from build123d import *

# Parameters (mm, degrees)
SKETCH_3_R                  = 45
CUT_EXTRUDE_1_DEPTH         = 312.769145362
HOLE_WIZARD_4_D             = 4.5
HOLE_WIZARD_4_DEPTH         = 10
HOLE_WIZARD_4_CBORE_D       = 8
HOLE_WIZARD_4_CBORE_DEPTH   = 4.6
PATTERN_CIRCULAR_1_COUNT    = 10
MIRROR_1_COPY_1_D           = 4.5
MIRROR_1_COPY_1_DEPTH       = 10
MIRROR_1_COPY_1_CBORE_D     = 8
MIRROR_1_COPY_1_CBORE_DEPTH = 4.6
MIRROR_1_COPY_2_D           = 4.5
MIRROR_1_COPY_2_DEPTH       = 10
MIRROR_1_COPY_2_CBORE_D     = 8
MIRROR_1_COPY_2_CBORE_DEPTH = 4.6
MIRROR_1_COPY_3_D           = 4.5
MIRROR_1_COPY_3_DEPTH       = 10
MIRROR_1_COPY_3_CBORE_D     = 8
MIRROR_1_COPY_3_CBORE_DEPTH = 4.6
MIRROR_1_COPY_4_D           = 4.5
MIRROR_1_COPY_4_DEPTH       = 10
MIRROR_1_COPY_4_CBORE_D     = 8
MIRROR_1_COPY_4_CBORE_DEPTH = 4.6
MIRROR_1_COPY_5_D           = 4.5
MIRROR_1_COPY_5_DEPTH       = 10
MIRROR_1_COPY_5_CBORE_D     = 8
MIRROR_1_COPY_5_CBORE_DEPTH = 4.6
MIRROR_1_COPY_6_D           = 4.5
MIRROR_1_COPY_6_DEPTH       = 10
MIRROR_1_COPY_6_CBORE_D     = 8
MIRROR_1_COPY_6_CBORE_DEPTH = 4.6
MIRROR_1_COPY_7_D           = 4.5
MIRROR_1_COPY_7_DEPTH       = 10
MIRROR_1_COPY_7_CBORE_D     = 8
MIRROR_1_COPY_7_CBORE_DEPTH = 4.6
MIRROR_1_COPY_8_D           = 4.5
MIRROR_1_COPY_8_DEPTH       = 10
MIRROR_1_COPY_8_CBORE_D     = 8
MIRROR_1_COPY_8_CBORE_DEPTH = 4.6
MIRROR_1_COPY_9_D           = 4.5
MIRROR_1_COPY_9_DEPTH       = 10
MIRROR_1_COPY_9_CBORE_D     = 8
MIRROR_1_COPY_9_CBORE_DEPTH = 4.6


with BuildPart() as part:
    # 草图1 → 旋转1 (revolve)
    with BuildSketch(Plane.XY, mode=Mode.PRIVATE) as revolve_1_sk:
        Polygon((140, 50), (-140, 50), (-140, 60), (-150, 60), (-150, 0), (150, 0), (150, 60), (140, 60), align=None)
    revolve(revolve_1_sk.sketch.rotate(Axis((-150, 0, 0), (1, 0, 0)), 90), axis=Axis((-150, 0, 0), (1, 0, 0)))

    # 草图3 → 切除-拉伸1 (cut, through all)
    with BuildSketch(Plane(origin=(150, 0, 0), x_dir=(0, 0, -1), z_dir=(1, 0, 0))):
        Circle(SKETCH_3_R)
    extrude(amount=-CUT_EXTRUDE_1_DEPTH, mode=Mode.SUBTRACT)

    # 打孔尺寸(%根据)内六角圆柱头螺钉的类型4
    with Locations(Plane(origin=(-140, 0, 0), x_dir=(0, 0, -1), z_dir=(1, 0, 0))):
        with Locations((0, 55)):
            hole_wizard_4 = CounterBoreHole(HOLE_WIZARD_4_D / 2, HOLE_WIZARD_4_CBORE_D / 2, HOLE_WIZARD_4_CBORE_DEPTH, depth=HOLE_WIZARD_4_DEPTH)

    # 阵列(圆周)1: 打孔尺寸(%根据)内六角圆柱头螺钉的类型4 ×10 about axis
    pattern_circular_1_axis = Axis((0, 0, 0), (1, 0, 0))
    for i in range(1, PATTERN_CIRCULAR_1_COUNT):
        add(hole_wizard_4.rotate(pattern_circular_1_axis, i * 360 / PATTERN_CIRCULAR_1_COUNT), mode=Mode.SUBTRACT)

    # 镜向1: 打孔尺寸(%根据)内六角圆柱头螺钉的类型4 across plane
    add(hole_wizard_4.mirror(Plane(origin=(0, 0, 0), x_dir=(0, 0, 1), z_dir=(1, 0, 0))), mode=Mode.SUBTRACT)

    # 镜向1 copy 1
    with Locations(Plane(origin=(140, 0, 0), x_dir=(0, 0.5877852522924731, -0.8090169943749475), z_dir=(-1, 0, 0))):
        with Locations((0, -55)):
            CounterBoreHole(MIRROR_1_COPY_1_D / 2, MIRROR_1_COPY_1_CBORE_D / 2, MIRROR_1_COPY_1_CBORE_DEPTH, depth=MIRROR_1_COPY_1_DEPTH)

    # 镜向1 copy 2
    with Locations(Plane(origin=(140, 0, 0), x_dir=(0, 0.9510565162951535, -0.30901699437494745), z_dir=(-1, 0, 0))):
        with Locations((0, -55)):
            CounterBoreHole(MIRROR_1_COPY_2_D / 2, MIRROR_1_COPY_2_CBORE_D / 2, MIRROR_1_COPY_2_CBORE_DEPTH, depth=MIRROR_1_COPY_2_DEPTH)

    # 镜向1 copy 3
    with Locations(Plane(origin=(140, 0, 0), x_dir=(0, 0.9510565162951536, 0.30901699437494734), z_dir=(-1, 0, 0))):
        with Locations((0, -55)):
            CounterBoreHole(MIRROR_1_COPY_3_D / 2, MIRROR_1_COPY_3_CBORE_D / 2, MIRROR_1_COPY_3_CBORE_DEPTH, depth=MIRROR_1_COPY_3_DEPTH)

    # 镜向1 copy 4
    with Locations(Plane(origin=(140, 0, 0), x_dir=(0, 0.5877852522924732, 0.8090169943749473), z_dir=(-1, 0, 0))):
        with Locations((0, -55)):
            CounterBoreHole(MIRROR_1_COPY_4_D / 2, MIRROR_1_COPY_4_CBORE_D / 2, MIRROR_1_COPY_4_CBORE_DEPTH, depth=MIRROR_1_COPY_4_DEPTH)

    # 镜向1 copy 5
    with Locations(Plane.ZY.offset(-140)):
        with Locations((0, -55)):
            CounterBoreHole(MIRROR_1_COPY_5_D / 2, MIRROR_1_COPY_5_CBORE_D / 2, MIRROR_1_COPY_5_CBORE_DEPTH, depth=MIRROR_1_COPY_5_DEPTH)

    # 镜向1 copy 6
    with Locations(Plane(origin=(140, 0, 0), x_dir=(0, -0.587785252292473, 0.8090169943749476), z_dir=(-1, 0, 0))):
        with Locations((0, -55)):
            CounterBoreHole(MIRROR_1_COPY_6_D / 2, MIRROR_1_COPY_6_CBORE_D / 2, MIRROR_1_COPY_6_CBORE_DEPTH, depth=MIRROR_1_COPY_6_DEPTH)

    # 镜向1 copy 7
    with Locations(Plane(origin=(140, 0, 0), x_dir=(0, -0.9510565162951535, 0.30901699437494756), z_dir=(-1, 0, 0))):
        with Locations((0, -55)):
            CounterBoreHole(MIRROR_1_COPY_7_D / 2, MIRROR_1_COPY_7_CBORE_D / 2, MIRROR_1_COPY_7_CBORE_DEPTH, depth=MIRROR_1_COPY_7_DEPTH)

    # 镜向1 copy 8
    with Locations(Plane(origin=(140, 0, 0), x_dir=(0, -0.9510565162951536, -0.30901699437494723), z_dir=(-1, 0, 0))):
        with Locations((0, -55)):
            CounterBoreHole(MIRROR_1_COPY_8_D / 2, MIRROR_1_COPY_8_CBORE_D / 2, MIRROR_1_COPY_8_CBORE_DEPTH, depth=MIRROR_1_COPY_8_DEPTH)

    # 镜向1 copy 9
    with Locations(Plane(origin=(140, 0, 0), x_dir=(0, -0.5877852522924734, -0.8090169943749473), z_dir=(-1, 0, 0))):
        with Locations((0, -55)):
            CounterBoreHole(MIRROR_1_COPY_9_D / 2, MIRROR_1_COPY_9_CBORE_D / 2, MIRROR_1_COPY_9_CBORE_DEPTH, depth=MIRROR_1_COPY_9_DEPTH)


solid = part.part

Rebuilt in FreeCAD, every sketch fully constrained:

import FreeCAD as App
import Part
import Sketcher

V = App.Vector
Q = App.Units.Quantity


def add_polygon(sketch, points):
    """Adds a closed chain of lines whose ends are joined by coincident constraints."""
    first, n = sketch.GeometryCount, len(points)
    for a, b in zip(points, points[1:] + points[:1]):
        sketch.addGeometry(Part.LineSegment(App.Vector(*a, 0), App.Vector(*b, 0)), False)
    for i in range(n):
        sketch.addConstraint(Sketcher.Constraint("Coincident", first + i, 2, first + (i + 1) % n, 1))

doc = App.newDocument("Part")
body = doc.addObject("PartDesign::Body", "Body")

# Sketch on XY plane
sketch1 = body.newObject("Sketcher::SketchObject", "Sketch")
sketch1.AttachmentSupport = (doc.getObject("XY_Plane"), [""])
sketch1.MapMode = "FlatFace"
add_polygon(sketch1, [(140, 50), (-140, 50), (-140, 60), (-150, 60), (-150, 0), (150, 0), (150, 60), (140, 60)])  # lines 0-7
sketch1.addConstraint([
    Sketcher.Constraint("Horizontal", 0),
    Sketcher.Constraint("Vertical", 1),
    Sketcher.Constraint("Horizontal", 2),
    Sketcher.Constraint("Vertical", 3),
    Sketcher.Constraint("Horizontal", 4),
    Sketcher.Constraint("Vertical", 5),
    Sketcher.Constraint("Horizontal", 6),
    Sketcher.Constraint("Vertical", 7),
    Sketcher.Constraint("Symmetric", 3, 2, 4, 2, -1, 1),
    Sketcher.Constraint("Symmetric", 1, 2, 6, 2, -2),
    Sketcher.Constraint("Equal", 6, 1),
    Sketcher.Constraint("DistanceX", 0, 2, 0, 1, Q("280 mm")),
    Sketcher.Constraint("DistanceX", 2, 2, 2, 1, Q("10 mm")),
    Sketcher.Constraint("DistanceY", 3, 2, 3, 1, Q("60 mm")),
])
revolution = body.newObject("PartDesign::Revolution", "Revolution")
revolution.Profile = sketch1
revolution.ReferenceAxis = (sketch1, ["H_Axis"])
revolution.Angle = 360

# Sketch on YZ plane
sketch2 = body.newObject("Sketcher::SketchObject", "Sketch001")
sketch2.AttachmentSupport = (doc.getObject("YZ_Plane"), [""])
sketch2.MapMode = "FlatFace"
sketch2.AttachmentOffset = App.Placement(V(0, 0, 150), App.Rotation())
sketch2.addGeometry(Part.Circle(V(0, 0, 0), V(0, 0, 1), 45), False)
sketch2.addConstraint([
    Sketcher.Constraint("Coincident", 0, 3, -1, 1),
    Sketcher.Constraint("Diameter", 0, Q("90 mm")),
])
pocket1 = body.newObject("PartDesign::Pocket", "Pocket")
pocket1.Profile = sketch2
pocket1.Type = "ThroughAll"

# Sketch on YZ plane
sketch3 = body.newObject("Sketcher::SketchObject", "Sketch002")
sketch3.AttachmentSupport = (doc.getObject("YZ_Plane"), [""])
sketch3.MapMode = "FlatFace"
sketch3.AttachmentOffset = App.Placement(V(0, 0, -140), App.Rotation())
sketch3.addGeometry(Part.Circle(V(55, 0, 0), V(0, 0, 1), 2.2), False)
sketch3.addConstraint([
    Sketcher.Constraint("PointOnObject", 0, 3, -1),
    Sketcher.Constraint("Diameter", 0, Q("4.5 mm")),
    Sketcher.Constraint("DistanceX", -1, 1, 0, 3, Q("55 mm")),
])
doc.recompute()
hole = body.newObject("PartDesign::Hole", "Hole")
hole.Profile = sketch3
hole.ThreadType = "None"
hole.Diameter = 4.5
hole.DepthType = "Dimension"
hole.Depth = 10
hole.DrillPoint = "Flat"
hole.HoleCutType = "Counterbore"
hole.HoleCutDiameter = 8
hole.HoleCutDepth = 4.6
doc.recompute()

polarpattern = body.newObject("PartDesign::PolarPattern", "PolarPattern")
polarpattern.Originals = [hole]
polarpattern.Axis = (doc.getObject("X_Axis"), [""])
polarpattern.Angle = 360
polarpattern.Occurrences = 10
body.Tip = polarpattern
doc.recompute()

mirrored = body.newObject("PartDesign::Mirrored", "Mirrored")
mirrored.Originals = [hole]
mirrored.MirrorPlane = (doc.getObject("YZ_Plane"), [""])
body.Tip = mirrored

# Sketch on YZ plane
sketch4 = body.newObject("Sketcher::SketchObject", "Sketch003")
sketch4.AttachmentSupport = (doc.getObject("YZ_Plane"), [""])
sketch4.MapMode = "FlatFace"
sketch4.AttachmentOffset = App.Placement(V(0, 0, 140), App.Rotation())
sketch4.addGeometry(Part.Circle(V(44.5, 32.3, 0), V(0, 0, 1), 2.2), False)
sketch4.addConstraint([
    Sketcher.Constraint("Diameter", 0, Q("4.5 mm")),
    Sketcher.Constraint("DistanceY", -1, 1, 0, 3, Q("32.328189 mm")),
    Sketcher.Constraint("DistanceX", -1, 1, 0, 3, Q("44.495935 mm")),
])
doc.recompute()
hole2 = body.newObject("PartDesign::Hole", "Hole001")
hole2.Profile = sketch4
hole2.ThreadType = "None"
hole2.Diameter = 4.5
hole2.DepthType = "Dimension"
hole2.Depth = 10
hole2.DrillPoint = "Flat"
hole2.HoleCutType = "Counterbore"
hole2.HoleCutDiameter = 8
hole2.HoleCutDepth = 4.6
hole2.Reversed = True

# Sketch on YZ plane
sketch5 = body.newObject("Sketcher::SketchObject", "Sketch004")
sketch5.AttachmentSupport = (doc.getObject("YZ_Plane"), [""])
sketch5.MapMode = "FlatFace"
sketch5.AttachmentOffset = App.Placement(V(0, 0, 140), App.Rotation())
sketch5.addGeometry(Part.Circle(V(17, 52.3, 0), V(0, 0, 1), 2.2), False)
sketch5.addConstraint([
    Sketcher.Constraint("Diameter", 0, Q("4.5 mm")),
    Sketcher.Constraint("DistanceY", -1, 1, 0, 3, Q("52.308108 mm")),
    Sketcher.Constraint("DistanceX", -1, 1, 0, 3, Q("16.995935 mm")),
])
doc.recompute()
hole3 = body.newObject("PartDesign::Hole", "Hole002")
hole3.Profile = sketch5
hole3.ThreadType = "None"
hole3.Diameter = 4.5
hole3.DepthType = "Dimension"
hole3.Depth = 10
hole3.DrillPoint = "Flat"
hole3.HoleCutType = "Counterbore"
hole3.HoleCutDiameter = 8
hole3.HoleCutDepth = 4.6
hole3.Reversed = True

# Sketch on YZ plane
sketch6 = body.newObject("Sketcher::SketchObject", "Sketch005")
sketch6.AttachmentSupport = (doc.getObject("YZ_Plane"), [""])
sketch6.MapMode = "FlatFace"
sketch6.AttachmentOffset = App.Placement(V(0, 0, 140), App.Rotation())
sketch6.addGeometry(Part.Circle(V(-17, 52.3, 0), V(0, 0, 1), 2.2), False)
sketch6.addConstraint([
    Sketcher.Constraint("Diameter", 0, Q("4.5 mm")),
    Sketcher.Constraint("DistanceY", -1, 1, 0, 3, Q("52.308108 mm")),
    Sketcher.Constraint("DistanceX", 0, 3, -1, 1, Q("16.995935 mm")),
])
doc.recompute()
hole4 = body.newObject("PartDesign::Hole", "Hole003")
hole4.Profile = sketch6
hole4.ThreadType = "None"
hole4.Diameter = 4.5
hole4.DepthType = "Dimension"
hole4.Depth = 10
hole4.DrillPoint = "Flat"
hole4.HoleCutType = "Counterbore"
hole4.HoleCutDiameter = 8
hole4.HoleCutDepth = 4.6
hole4.Reversed = True

# Sketch on YZ plane
sketch7 = body.newObject("Sketcher::SketchObject", "Sketch006")
sketch7.AttachmentSupport = (doc.getObject("YZ_Plane"), [""])
sketch7.MapMode = "FlatFace"
sketch7.AttachmentOffset = App.Placement(V(0, 0, 140), App.Rotation())
sketch7.addGeometry(Part.Circle(V(-44.5, 32.3, 0), V(0, 0, 1), 2.2), False)
sketch7.addConstraint([
    Sketcher.Constraint("Diameter", 0, Q("4.5 mm")),
    Sketcher.Constraint("DistanceY", -1, 1, 0, 3, Q("32.328189 mm")),
    Sketcher.Constraint("DistanceX", 0, 3, -1, 1, Q("44.495935 mm")),
])
doc.recompute()
hole5 = body.newObject("PartDesign::Hole", "Hole004")
hole5.Profile = sketch7
hole5.ThreadType = "None"
hole5.Diameter = 4.5
hole5.DepthType = "Dimension"
hole5.Depth = 10
hole5.DrillPoint = "Flat"
hole5.HoleCutType = "Counterbore"
hole5.HoleCutDiameter = 8
hole5.HoleCutDepth = 4.6
hole5.Reversed = True

# Sketch on YZ plane
sketch8 = body.newObject("Sketcher::SketchObject", "Sketch007")
sketch8.AttachmentSupport = (doc.getObject("YZ_Plane"), [""])
sketch8.MapMode = "FlatFace"
sketch8.AttachmentOffset = App.Placement(V(0, 0, 140), App.Rotation())
sketch8.addGeometry(Part.Circle(V(-55, 0, 0), V(0, 0, 1), 2.2), False)
sketch8.addConstraint([
    Sketcher.Constraint("PointOnObject", 0, 3, -1),
    Sketcher.Constraint("Diameter", 0, Q("4.5 mm")),
    Sketcher.Constraint("DistanceX", 0, 3, -1, 1, Q("55 mm")),
])
doc.recompute()
hole6 = body.newObject("PartDesign::Hole", "Hole005")
hole6.Profile = sketch8
hole6.ThreadType = "None"
hole6.Diameter = 4.5
hole6.DepthType = "Dimension"
hole6.Depth = 10
hole6.DrillPoint = "Flat"
hole6.HoleCutType = "Counterbore"
hole6.HoleCutDiameter = 8
hole6.HoleCutDepth = 4.6
hole6.Reversed = True

# Sketch on YZ plane
sketch9 = body.newObject("Sketcher::SketchObject", "Sketch008")
sketch9.AttachmentSupport = (doc.getObject("YZ_Plane"), [""])
sketch9.MapMode = "FlatFace"
sketch9.AttachmentOffset = App.Placement(V(0, 0, 140), App.Rotation())
sketch9.addGeometry(Part.Circle(V(-44.5, -32.3, 0), V(0, 0, 1), 2.2), False)
sketch9.addConstraint([
    Sketcher.Constraint("Diameter", 0, Q("4.5 mm")),
    Sketcher.Constraint("DistanceY", 0, 3, -1, 1, Q("32.328189 mm")),
    Sketcher.Constraint("DistanceX", 0, 3, -1, 1, Q("44.495935 mm")),
])
doc.recompute()
hole7 = body.newObject("PartDesign::Hole", "Hole006")
hole7.Profile = sketch9
hole7.ThreadType = "None"
hole7.Diameter = 4.5
hole7.DepthType = "Dimension"
hole7.Depth = 10
hole7.DrillPoint = "Flat"
hole7.HoleCutType = "Counterbore"
hole7.HoleCutDiameter = 8
hole7.HoleCutDepth = 4.6
hole7.Reversed = True

# Sketch on YZ plane
sketch10 = body.newObject("Sketcher::SketchObject", "Sketch009")
sketch10.AttachmentSupport = (doc.getObject("YZ_Plane"), [""])
sketch10.MapMode = "FlatFace"
sketch10.AttachmentOffset = App.Placement(V(0, 0, 140), App.Rotation())
sketch10.addGeometry(Part.Circle(V(-17, -52.3, 0), V(0, 0, 1), 2.2), False)
sketch10.addConstraint([
    Sketcher.Constraint("Diameter", 0, Q("4.5 mm")),
    Sketcher.Constraint("DistanceY", 0, 3, -1, 1, Q("52.308108 mm")),
    Sketcher.Constraint("DistanceX", 0, 3, -1, 1, Q("16.995935 mm")),
])
doc.recompute()
hole8 = body.newObject("PartDesign::Hole", "Hole007")
hole8.Profile = sketch10
hole8.ThreadType = "None"
hole8.Diameter = 4.5
hole8.DepthType = "Dimension"
hole8.Depth = 10
hole8.DrillPoint = "Flat"
hole8.HoleCutType = "Counterbore"
hole8.HoleCutDiameter = 8
hole8.HoleCutDepth = 4.6
hole8.Reversed = True

# Sketch on YZ plane
sketch11 = body.newObject("Sketcher::SketchObject", "Sketch010")
sketch11.AttachmentSupport = (doc.getObject("YZ_Plane"), [""])
sketch11.MapMode = "FlatFace"
sketch11.AttachmentOffset = App.Placement(V(0, 0, 140), App.Rotation())
sketch11.addGeometry(Part.Circle(V(17, -52.3, 0), V(0, 0, 1), 2.2), False)
sketch11.addConstraint([
    Sketcher.Constraint("Diameter", 0, Q("4.5 mm")),
    Sketcher.Constraint("DistanceY", 0, 3, -1, 1, Q("52.308108 mm")),
    Sketcher.Constraint("DistanceX", -1, 1, 0, 3, Q("16.995935 mm")),
])
doc.recompute()
hole9 = body.newObject("PartDesign::Hole", "Hole008")
hole9.Profile = sketch11
hole9.ThreadType = "None"
hole9.Diameter = 4.5
hole9.DepthType = "Dimension"
hole9.Depth = 10
hole9.DrillPoint = "Flat"
hole9.HoleCutType = "Counterbore"
hole9.HoleCutDiameter = 8
hole9.HoleCutDepth = 4.6
hole9.Reversed = True

# Sketch on YZ plane
sketch12 = body.newObject("Sketcher::SketchObject", "Sketch011")
sketch12.AttachmentSupport = (doc.getObject("YZ_Plane"), [""])
sketch12.MapMode = "FlatFace"
sketch12.AttachmentOffset = App.Placement(V(0, 0, 140), App.Rotation())
sketch12.addGeometry(Part.Circle(V(44.5, -32.3, 0), V(0, 0, 1), 2.2), False)
sketch12.addConstraint([
    Sketcher.Constraint("Diameter", 0, Q("4.5 mm")),
    Sketcher.Constraint("DistanceY", 0, 3, -1, 1, Q("32.328189 mm")),
    Sketcher.Constraint("DistanceX", -1, 1, 0, 3, Q("44.495935 mm")),
])
doc.recompute()
hole10 = body.newObject("PartDesign::Hole", "Hole009")
hole10.Profile = sketch12
hole10.ThreadType = "None"
hole10.Diameter = 4.5
hole10.DepthType = "Dimension"
hole10.Depth = 10
hole10.DrillPoint = "Flat"
hole10.HoleCutType = "Counterbore"
hole10.HoleCutDiameter = 8
hole10.HoleCutDepth = 4.6
hole10.Reversed = True

doc.recompute()
